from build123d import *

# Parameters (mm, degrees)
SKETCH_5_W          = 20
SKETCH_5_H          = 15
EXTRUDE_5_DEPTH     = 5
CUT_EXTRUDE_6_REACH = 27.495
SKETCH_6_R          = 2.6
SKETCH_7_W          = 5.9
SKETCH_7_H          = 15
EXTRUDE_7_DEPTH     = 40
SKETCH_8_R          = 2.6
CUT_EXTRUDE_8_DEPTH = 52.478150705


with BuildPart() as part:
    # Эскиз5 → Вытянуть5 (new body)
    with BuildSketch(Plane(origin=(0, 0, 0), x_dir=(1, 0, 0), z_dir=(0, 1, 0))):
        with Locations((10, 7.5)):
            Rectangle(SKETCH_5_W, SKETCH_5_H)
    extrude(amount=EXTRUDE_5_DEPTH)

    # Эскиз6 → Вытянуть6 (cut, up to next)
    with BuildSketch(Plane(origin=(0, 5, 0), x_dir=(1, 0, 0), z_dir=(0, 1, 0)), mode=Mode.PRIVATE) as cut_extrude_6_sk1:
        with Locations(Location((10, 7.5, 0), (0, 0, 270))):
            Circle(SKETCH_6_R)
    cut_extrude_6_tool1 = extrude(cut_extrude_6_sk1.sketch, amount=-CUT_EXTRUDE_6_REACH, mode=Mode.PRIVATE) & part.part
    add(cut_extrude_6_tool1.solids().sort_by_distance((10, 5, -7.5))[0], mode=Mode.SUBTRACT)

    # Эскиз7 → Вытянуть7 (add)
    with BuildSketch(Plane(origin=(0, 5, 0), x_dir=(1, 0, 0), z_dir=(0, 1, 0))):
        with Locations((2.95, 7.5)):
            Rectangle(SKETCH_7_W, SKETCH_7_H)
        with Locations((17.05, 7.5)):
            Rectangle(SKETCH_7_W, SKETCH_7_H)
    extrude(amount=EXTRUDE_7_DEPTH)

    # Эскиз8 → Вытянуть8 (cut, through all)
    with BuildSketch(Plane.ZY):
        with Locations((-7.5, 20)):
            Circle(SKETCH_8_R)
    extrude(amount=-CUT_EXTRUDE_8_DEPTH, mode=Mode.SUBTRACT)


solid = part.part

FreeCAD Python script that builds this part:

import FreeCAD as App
import Part
import Sketcher

doc = App.newDocument("Part")
body = doc.addObject("PartDesign::Body", "Body")

# Sketch on XZ plane
sketch1 = body.newObject("Sketcher::SketchObject", "Sketch")
sketch1.AttachmentSupport = (doc.getObject("XZ_Plane"), [""])
sketch1.MapMode = "FlatFace"
sketch1.addGeometry([
    Part.LineSegment(App.Vector(0, -15, 0), App.Vector(0, 0, 0)),
    Part.LineSegment(App.Vector(0, 0, 0), App.Vector(20, 0, 0)),
    Part.LineSegment(App.Vector(20, 0, 0), App.Vector(20, -15, 0)),
    Part.LineSegment(App.Vector(20, -15, 0), App.Vector(0, -15, 0)),
], False)
sketch1.addConstraint([
    Sketcher.Constraint("Coincident", 0, 2, 1, 1),
    Sketcher.Constraint("Coincident", 1, 2, 2, 1),
    Sketcher.Constraint("Coincident", 2, 2, 3, 1),
    Sketcher.Constraint("Coincident", 3, 2, 0, 1),
    Sketcher.Constraint("Vertical", 0),
    Sketcher.Constraint("Horizontal", 1),
    Sketcher.Constraint("Vertical", 2),
    Sketcher.Constraint("Horizontal", 3),
    Sketcher.Constraint("Coincident", 0, 2, -1, 1),
    Sketcher.Constraint("DistanceX", 1, 1, 1, 2, 20.0),
    Sketcher.Constraint("DistanceY", 0, 1, 0, 2, 15.0),
])
pad1 = body.newObject("PartDesign::Pad", "Pad")
pad1.Profile = sketch1
pad1.Length = 5
pad1.Reversed = True

# Sketch on XZ plane
sketch2 = body.newObject("Sketcher::SketchObject", "Sketch001")
sketch2.AttachmentSupport = (doc.getObject("XZ_Plane"), [""])
sketch2.MapMode = "FlatFace"
sketch2.AttachmentOffset = App.Placement(App.Vector(0, 0, -5), App.Rotation())
sketch2.addGeometry(Part.Circle(App.Vector(10, -7.5, 0), App.Vector(0, 0, 1), 2.6), False)
sketch2.addConstraint([
    Sketcher.Constraint("Diameter", 0, 5.2),
    Sketcher.Constraint("DistanceX", -1, 1, 0, 3, 10.0),
    Sketcher.Constraint("DistanceY", 0, 3, -1, 1, 7.5),
])
pocket1 = body.newObject("PartDesign::Pocket", "Pocket")
pocket1.Profile = sketch2
pocket1.Type = "UpToFirst"
pocket1.Reversed = True

# Sketch on XZ plane
sketch3 = body.newObject("Sketcher::SketchObject", "Sketch002")
sketch3.AttachmentSupport = (doc.getObject("XZ_Plane"), [""])
sketch3.MapMode = "FlatFace"
sketch3.AttachmentOffset = App.Placement(App.Vector(0, 0, -5), App.Rotation())
sketch3.addGeometry([
    Part.LineSegment(App.Vector(0, -15, 0), App.Vector(0, 0, 0)),  # 0
    Part.LineSegment(App.Vector(0, 0, 0), App.Vector(5.9, 0, 0)),  # 1
    Part.LineSegment(App.Vector(5.9, 0, 0), App.Vector(5.9, -15, 0)),  # 2
    Part.LineSegment(App.Vector(5.9, -15, 0), App.Vector(0, -15, 0)),  # 3
    Part.LineSegment(App.Vector(14.1, -15, 0), App.Vector(14.1, 0, 0)),  # 4
    Part.LineSegment(App.Vector(14.1, 0, 0), App.Vector(20, 0, 0)),  # 5
    Part.LineSegment(App.Vector(20, 0, 0), App.Vector(20, -15, 0)),  # 6
    Part.LineSegment(App.Vector(20, -15, 0), App.Vector(14.1, -15, 0)),  # 7
], False)
sketch3.addConstraint([
    Sketcher.Constraint("Coincident", 0, 2, 1, 1),
    Sketcher.Constraint("Coincident", 1, 2, 2, 1),
    Sketcher.Constraint("Coincident", 2, 2, 3, 1),
    Sketcher.Constraint("Coincident", 3, 2, 0, 1),
    Sketcher.Constraint("Coincident", 4, 2, 5, 1),
    Sketcher.Constraint("Coincident", 5, 2, 6, 1),
    Sketcher.Constraint("Coincident", 6, 2, 7, 1),
    Sketcher.Constraint("Coincident", 7, 2, 4, 1),
    Sketcher.Constraint("Vertical", 0),
    Sketcher.Constraint("Horizontal", 1),
    Sketcher.Constraint("Vertical", 2),
    Sketcher.Constraint("Horizontal", 3),
    Sketcher.Constraint("Vertical", 4),
    Sketcher.Constraint("Horizontal", 5),
    Sketcher.Constraint("Vertical", 6),
    Sketcher.Constraint("Horizontal", 7),
    Sketcher.Constraint("Coincident", 0, 2, -1, 1),
    Sketcher.Constraint("PointOnObject", 4, 2, -1),
    Sketcher.Constraint("Horizontal", 3, 2, 6, 2),
    Sketcher.Constraint("Equal", 3, 5),
    Sketcher.Constraint("DistanceY", 0, 1, 0, 2, 15.0),
    Sketcher.Constraint("DistanceX", 1, 1, 1, 2, 5.9),
    Sketcher.Constraint("DistanceX", -1, 1, 5, 2, 20.0),
])
pad2 = body.newObject("PartDesign::Pad", "Pad001")
pad2.Profile = sketch3
pad2.Length = 40
pad2.Reversed = True

# Sketch on YZ plane
sketch4 = body.newObject("Sketcher::SketchObject", "Sketch003")
sketch4.AttachmentSupport = (doc.getObject("YZ_Plane"), [""])
sketch4.MapMode = "FlatFace"
sketch4.addGeometry(Part.Circle(App.Vector(20, -7.5, 0), App.Vector(0, 0, 1), 2.6), False)
sketch4.addConstraint([
    Sketcher.Constraint("Diameter", 0, 5.2),
    Sketcher.Constraint("DistanceX", -1, 1, 0, 3, 20.0),
    Sketcher.Constraint("DistanceY", 0, 3, -1, 1, 7.5),
])
pocket2 = body.newObject("PartDesign::Pocket", "Pocket001")
pocket2.Profile = sketch4
pocket2.Type = "ThroughAll"
pocket2.Reversed = True

doc.recompute()
